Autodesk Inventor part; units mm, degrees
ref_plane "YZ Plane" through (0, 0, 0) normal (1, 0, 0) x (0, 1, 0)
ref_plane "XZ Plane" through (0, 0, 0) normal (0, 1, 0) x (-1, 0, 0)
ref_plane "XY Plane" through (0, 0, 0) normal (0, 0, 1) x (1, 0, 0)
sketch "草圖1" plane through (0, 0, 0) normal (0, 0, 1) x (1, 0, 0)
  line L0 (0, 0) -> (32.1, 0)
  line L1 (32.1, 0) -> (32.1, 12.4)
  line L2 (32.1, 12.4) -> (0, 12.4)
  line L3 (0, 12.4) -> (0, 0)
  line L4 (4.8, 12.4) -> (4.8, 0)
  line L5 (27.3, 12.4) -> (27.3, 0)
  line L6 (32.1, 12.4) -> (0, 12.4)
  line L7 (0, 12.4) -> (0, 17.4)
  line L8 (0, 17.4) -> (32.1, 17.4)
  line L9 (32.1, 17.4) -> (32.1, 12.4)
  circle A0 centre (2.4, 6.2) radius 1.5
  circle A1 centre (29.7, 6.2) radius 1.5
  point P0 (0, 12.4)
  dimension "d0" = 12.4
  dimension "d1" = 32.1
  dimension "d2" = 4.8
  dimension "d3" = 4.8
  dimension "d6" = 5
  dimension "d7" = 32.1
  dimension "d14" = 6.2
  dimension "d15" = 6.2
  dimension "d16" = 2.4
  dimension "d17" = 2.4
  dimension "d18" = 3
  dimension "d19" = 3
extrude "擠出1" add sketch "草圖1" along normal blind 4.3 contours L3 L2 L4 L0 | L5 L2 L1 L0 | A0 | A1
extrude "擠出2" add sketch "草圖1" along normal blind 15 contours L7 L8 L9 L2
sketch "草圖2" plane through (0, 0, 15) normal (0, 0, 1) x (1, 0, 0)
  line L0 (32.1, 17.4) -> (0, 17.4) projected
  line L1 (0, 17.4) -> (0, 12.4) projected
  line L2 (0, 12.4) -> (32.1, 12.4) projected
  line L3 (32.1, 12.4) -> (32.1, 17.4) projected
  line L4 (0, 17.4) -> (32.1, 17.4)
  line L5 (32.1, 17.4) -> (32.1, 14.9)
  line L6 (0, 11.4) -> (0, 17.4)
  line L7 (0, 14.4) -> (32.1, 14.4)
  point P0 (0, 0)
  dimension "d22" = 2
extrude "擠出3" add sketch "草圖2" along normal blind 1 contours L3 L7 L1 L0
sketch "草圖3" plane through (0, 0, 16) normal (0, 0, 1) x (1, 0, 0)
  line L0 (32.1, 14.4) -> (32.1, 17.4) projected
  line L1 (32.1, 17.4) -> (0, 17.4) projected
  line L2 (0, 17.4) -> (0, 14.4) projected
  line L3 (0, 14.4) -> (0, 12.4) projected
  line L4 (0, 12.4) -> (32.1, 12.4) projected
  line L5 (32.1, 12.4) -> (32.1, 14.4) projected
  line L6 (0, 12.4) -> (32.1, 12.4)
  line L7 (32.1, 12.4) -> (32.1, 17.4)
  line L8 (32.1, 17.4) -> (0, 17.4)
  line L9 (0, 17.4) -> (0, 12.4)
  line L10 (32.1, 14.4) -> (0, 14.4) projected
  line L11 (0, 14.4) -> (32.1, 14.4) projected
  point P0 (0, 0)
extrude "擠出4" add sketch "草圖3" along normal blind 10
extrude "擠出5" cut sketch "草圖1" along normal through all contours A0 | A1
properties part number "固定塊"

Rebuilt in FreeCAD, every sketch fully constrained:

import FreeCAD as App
import Part
import Sketcher


def add_polygon(sketch, points):
    """Adds a closed chain of lines whose ends are joined by coincident constraints."""
    first, n = sketch.GeometryCount, len(points)
    for a, b in zip(points, points[1:] + points[:1]):
        sketch.addGeometry(Part.LineSegment(App.Vector(*a, 0), App.Vector(*b, 0)), False)
    for i in range(n):
        sketch.addConstraint(Sketcher.Constraint("Coincident", first + i, 2, first + (i + 1) % n, 1))

doc = App.newDocument("Part")
params = doc.addObject("Spreadsheet::Sheet", "Params")
for row, (alias, value) in enumerate([
    ("sketch1_width", "4.8 mm"),
    ("sketch1_height", "12.4 mm"),
    ("pad1_length", "4.3 mm"),
    ("sketch2_height", "5 mm"),
    ("sketch2_width", "32.1 mm"),
    ("pad2_length", "15 mm"),
    ("sketch3_height", "3 mm"),
    ("sketch3_width", "32.1 mm"),
    ("pad3_length", "1 mm"),
    ("sketch4_height", "5 mm"),
    ("sketch4_width", "32.1 mm"),
    ("pad4_length", "10 mm"),
    ("sketch5_diameter", "3 mm"),
], start=1):
    params.set(f"A{row}", alias)
    params.set(f"B{row}", "=" + value)
    params.setAlias(f"B{row}", alias)

body = doc.addObject("PartDesign::Body", "Body")
body.AllowCompound = True

# Sketch on XY plane
sketch1 = doc.addObject("Sketcher::SketchObject", "Sketch")
body.addObject(sketch1)
sketch1.AttachmentSupport = (doc.XY_Plane, [""])
sketch1.MapMode = "FlatFace"
add_polygon(sketch1, [(0, 12.4), (0, 0), (4.8, 0), (4.8, 12.4)])  # lines 0-3
add_polygon(sketch1, [(27.3, 12.4), (27.3, 0), (32.1, 0), (32.1, 12.4)])  # lines 4-7
sketch1.addConstraint(Sketcher.Constraint("Vertical", 0))
sketch1.addConstraint(Sketcher.Constraint("Horizontal", 1))
sketch1.addConstraint(Sketcher.Constraint("Vertical", 2))
sketch1.addConstraint(Sketcher.Constraint("Horizontal", 3))
sketch1.addConstraint(Sketcher.Constraint("Vertical", 4))
sketch1.addConstraint(Sketcher.Constraint("Horizontal", 5))
sketch1.addConstraint(Sketcher.Constraint("Vertical", 6))
sketch1.addConstraint(Sketcher.Constraint("Horizontal", 7))
sketch1.addConstraint(Sketcher.Constraint("Coincident", 0, 2, -1, 1))
sketch1.addConstraint(Sketcher.Constraint("PointOnObject", 4, 2, -1))
sketch1.addConstraint(Sketcher.Constraint("Horizontal", 3, 2, 6, 2))
sketch1.addConstraint(Sketcher.Constraint("Equal", 3, 5))
sketch1.addConstraint(Sketcher.Constraint("DistanceX", 1, 1, 1, 2, 4.8))
sketch1.addConstraint(Sketcher.Constraint("DistanceY", 0, 2, 0, 1, 12.4))
sketch1.addConstraint(Sketcher.Constraint("DistanceX", -1, 1, 5, 2, 32.1))
sketch1.setExpression("Constraints[20]", "Params.sketch1_width")
sketch1.setExpression("Constraints[21]", "Params.sketch1_height")
pad1 = doc.addObject("PartDesign::Pad", "Pad")
body.addObject(pad1)
pad1.Profile = sketch1
pad1.setExpression("Length", "Params.pad1_length")

# Sketch on XY plane
sketch2 = doc.addObject("Sketcher::SketchObject", "Sketch001")
body.addObject(sketch2)
sketch2.AttachmentSupport = (doc.XY_Plane, [""])
sketch2.MapMode = "FlatFace"
add_polygon(sketch2, [(0, 17.4), (0, 12.4), (32.1, 12.4), (32.1, 17.4)])  # lines 0-3
sketch2.addConstraint(Sketcher.Constraint("Vertical", 0))
sketch2.addConstraint(Sketcher.Constraint("Horizontal", 1))
sketch2.addConstraint(Sketcher.Constraint("Vertical", 2))
sketch2.addConstraint(Sketcher.Constraint("Horizontal", 3))
sketch2.addConstraint(Sketcher.Constraint("PointOnObject", 0, 2, -2))
sketch2.addConstraint(Sketcher.Constraint("DistanceY", 0, 2, 0, 1, 5.0))
sketch2.addConstraint(Sketcher.Constraint("DistanceX", 1, 1, 1, 2, 32.1))
sketch2.addConstraint(Sketcher.Constraint("DistanceY", -1, 1, 0, 2, 12.4))
sketch2.setExpression("Constraints[9]", "Params.sketch2_height")
sketch2.setExpression("Constraints[10]", "Params.sketch2_width")
pad2 = doc.addObject("PartDesign::Pad", "Pad001")
body.addObject(pad2)
pad2.Profile = sketch2
pad2.setExpression("Length", "Params.pad2_length")

# Sketch on XY plane
sketch3 = doc.addObject("Sketcher::SketchObject", "Sketch002")
body.addObject(sketch3)
sketch3.AttachmentSupport = (doc.XY_Plane, [""])
sketch3.MapMode = "FlatFace"
sketch3.AttachmentOffset = App.Placement(App.Vector(0, 0, 15), App.Rotation())
add_polygon(sketch3, [(32.1, 14.4), (32.1, 17.4), (0, 17.4), (0, 14.4)])  # lines 0-3
sketch3.addConstraint(Sketcher.Constraint("Vertical", 0))
sketch3.addConstraint(Sketcher.Constraint("Horizontal", 1))
sketch3.addConstraint(Sketcher.Constraint("Vertical", 2))
sketch3.addConstraint(Sketcher.Constraint("Horizontal", 3))
sketch3.addConstraint(Sketcher.Constraint("PointOnObject", 1, 2, -2))
sketch3.addConstraint(Sketcher.Constraint("DistanceY", 0, 1, 0, 2, 3.0))
sketch3.addConstraint(Sketcher.Constraint("DistanceX", 1, 2, 1, 1, 32.1))
sketch3.addConstraint(Sketcher.Constraint("DistanceY", -1, 1, 0, 2, 17.4))
sketch3.setExpression("Constraints[9]", "Params.sketch3_height")
sketch3.setExpression("Constraints[10]", "Params.sketch3_width")
pad3 = doc.addObject("PartDesign::Pad", "Pad002")
body.addObject(pad3)
pad3.Profile = sketch3
pad3.setExpression("Length", "Params.pad3_length")

# Sketch on XY plane
sketch4 = doc.addObject("Sketcher::SketchObject", "Sketch003")
body.addObject(sketch4)
sketch4.AttachmentSupport = (doc.XY_Plane, [""])
sketch4.MapMode = "FlatFace"
sketch4.AttachmentOffset = App.Placement(App.Vector(0, 0, 16), App.Rotation())
add_polygon(sketch4, [(0, 17.4), (0, 12.4), (32.1, 12.4), (32.1, 17.4)])  # lines 0-3
sketch4.addConstraint(Sketcher.Constraint("Vertical", 0))
sketch4.addConstraint(Sketcher.Constraint("Horizontal", 1))
sketch4.addConstraint(Sketcher.Constraint("Vertical", 2))
sketch4.addConstraint(Sketcher.Constraint("Horizontal", 3))
sketch4.addConstraint(Sketcher.Constraint("PointOnObject", 0, 2, -2))
sketch4.addConstraint(Sketcher.Constraint("DistanceY", 0, 2, 0, 1, 5.0))
sketch4.addConstraint(Sketcher.Constraint("DistanceX", 1, 1, 1, 2, 32.1))
sketch4.addConstraint(Sketcher.Constraint("DistanceY", -1, 1, 0, 2, 12.4))
sketch4.setExpression("Constraints[9]", "Params.sketch4_height")
sketch4.setExpression("Constraints[10]", "Params.sketch4_width")
pad4 = doc.addObject("PartDesign::Pad", "Pad003")
body.addObject(pad4)
pad4.Profile = sketch4
pad4.setExpression("Length", "Params.pad4_length")

# Sketch on XY plane
sketch5 = doc.addObject("Sketcher::SketchObject", "Sketch004")
body.addObject(sketch5)
sketch5.AttachmentSupport = (doc.XY_Plane, [""])
sketch5.MapMode = "FlatFace"
sketch5.addGeometry(Part.Circle(App.Vector(2.4, 6.2, 0), App.Vector(0, 0, 1), 1.5), False)
sketch5.addGeometry(Part.Circle(App.Vector(29.7, 6.2, 0), App.Vector(0, 0, 1), 1.5), False)
sketch5.addConstraint(Sketcher.Constraint("Equal", 0, 1))
sketch5.addConstraint(Sketcher.Constraint("Horizontal", 0, 3, 1, 3))
sketch5.addConstraint(Sketcher.Constraint("Diameter", 0, 3.0))
sketch5.addConstraint(Sketcher.Constraint("DistanceX", -1, 1, 0, 3, 2.4))
sketch5.addConstraint(Sketcher.Constraint("DistanceY", -1, 1, 0, 3, 6.2))
sketch5.addConstraint(Sketcher.Constraint("DistanceX", -1, 1, 1, 3, 29.7))
sketch5.setExpression("Constraints[2]", "Params.sketch5_diameter")
pocket1 = doc.addObject("PartDesign::Pocket", "Pocket")
body.addObject(pocket1)
pocket1.Profile = sketch5
pocket1.Type = "ThroughAll"
pocket1.Reversed = True

doc.recompute()
